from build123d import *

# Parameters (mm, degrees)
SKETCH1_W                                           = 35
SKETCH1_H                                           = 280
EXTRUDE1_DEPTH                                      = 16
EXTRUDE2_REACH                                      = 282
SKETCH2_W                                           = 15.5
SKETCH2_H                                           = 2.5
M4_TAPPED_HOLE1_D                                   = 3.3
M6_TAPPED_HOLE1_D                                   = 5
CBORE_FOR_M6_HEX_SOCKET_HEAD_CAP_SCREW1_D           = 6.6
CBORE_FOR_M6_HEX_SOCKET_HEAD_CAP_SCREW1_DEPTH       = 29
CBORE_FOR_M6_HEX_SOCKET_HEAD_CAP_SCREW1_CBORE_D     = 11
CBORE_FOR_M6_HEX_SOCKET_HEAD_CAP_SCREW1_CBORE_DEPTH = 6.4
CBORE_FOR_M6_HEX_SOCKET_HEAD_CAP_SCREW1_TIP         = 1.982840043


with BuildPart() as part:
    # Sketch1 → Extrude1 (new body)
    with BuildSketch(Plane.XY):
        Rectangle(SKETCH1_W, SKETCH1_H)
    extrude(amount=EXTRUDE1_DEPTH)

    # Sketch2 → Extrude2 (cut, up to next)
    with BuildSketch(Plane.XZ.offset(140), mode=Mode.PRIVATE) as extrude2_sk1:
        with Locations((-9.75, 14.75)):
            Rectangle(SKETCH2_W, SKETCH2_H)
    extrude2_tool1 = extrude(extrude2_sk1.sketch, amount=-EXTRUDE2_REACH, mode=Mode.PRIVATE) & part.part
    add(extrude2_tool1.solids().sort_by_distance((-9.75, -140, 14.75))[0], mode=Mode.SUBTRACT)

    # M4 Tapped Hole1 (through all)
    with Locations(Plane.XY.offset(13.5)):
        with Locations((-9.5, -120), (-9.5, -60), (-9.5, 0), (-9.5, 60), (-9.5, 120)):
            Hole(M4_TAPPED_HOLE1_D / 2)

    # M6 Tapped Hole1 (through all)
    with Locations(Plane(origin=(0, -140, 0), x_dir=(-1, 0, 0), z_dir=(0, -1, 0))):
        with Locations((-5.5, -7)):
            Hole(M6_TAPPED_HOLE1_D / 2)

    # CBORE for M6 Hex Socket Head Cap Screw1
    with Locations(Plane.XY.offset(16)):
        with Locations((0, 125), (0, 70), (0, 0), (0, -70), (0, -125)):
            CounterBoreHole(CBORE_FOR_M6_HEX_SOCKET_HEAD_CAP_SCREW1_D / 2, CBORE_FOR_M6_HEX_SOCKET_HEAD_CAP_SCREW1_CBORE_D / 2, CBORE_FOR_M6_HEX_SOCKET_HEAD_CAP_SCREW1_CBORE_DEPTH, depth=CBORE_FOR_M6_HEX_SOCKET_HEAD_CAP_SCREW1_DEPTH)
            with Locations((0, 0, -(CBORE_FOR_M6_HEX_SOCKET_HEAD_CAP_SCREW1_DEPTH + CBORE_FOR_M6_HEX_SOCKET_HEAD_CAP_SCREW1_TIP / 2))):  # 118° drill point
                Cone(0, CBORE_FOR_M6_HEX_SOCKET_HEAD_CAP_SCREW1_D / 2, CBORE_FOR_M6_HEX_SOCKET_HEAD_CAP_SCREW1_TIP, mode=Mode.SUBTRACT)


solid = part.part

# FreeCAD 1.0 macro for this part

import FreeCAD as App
import Part
import Sketcher

V = App.Vector

doc = App.newDocument("Part")
params = doc.addObject("Spreadsheet::Sheet", "Params")
for row, (alias, value) in enumerate([
    ("sketch1_width", "35 mm"),
    ("sketch1_height", "280 mm"),
    ("pad1_length", "16 mm"),
    ("sketch2_width", "15.5 mm"),
    ("sketch2_height", "2.5 mm"),
    ("sketch3_diameter", "3.3 mm"),
    ("hole_diameter", "3.3 mm"),
    ("sketch4_diameter", "5 mm"),
    ("hole2_diameter", "5 mm"),
    ("sketch5_diameter", "6.6 mm"),
    ("hole3_diameter", "6.6 mm"),
    ("hole3_depth", "29 mm"),
    ("hole3_cbore_diameter", "11 mm"),
    ("hole3_cbore_depth", "6.4 mm"),
], start=1):
    params.set(f"A{row}", alias)
    params.set(f"B{row}", "=" + value)
    params.setAlias(f"B{row}", alias)

body = doc.addObject("PartDesign::Body", "Body")

# Sketch on XY plane
sketch1 = body.newObject("Sketcher::SketchObject", "Sketch")
sketch1.AttachmentSupport = (doc.getObject("XY_Plane"), [""])
sketch1.MapMode = "FlatFace"
sketch1.addGeometry(Part.LineSegment(V(-17.5, 140, 0), V(-17.5, -140, 0)), False)
sketch1.addGeometry(Part.LineSegment(V(-17.5, -140, 0), V(17.5, -140, 0)), False)
sketch1.addGeometry(Part.LineSegment(V(17.5, -140, 0), V(17.5, 140, 0)), False)
sketch1.addGeometry(Part.LineSegment(V(17.5, 140, 0), V(-17.5, 140, 0)), False)
sketch1.addConstraint(Sketcher.Constraint("Coincident", 0, 2, 1, 1))
sketch1.addConstraint(Sketcher.Constraint("Coincident", 1, 2, 2, 1))
sketch1.addConstraint(Sketcher.Constraint("Coincident", 2, 2, 3, 1))
sketch1.addConstraint(Sketcher.Constraint("Coincident", 3, 2, 0, 1))
sketch1.addConstraint(Sketcher.Constraint("Vertical", 0))
sketch1.addConstraint(Sketcher.Constraint("Horizontal", 1))
sketch1.addConstraint(Sketcher.Constraint("Vertical", 2))
sketch1.addConstraint(Sketcher.Constraint("Horizontal", 3))
sketch1.addConstraint(Sketcher.Constraint("Symmetric", 0, 2, 2, 2, -1, 1))
sketch1.addConstraint(Sketcher.Constraint("DistanceX", 1, 1, 1, 2, 35.0))
sketch1.addConstraint(Sketcher.Constraint("DistanceY", 0, 2, 0, 1, 280.0))
sketch1.setExpression("Constraints[9]", "Params.sketch1_width")
sketch1.setExpression("Constraints[10]", "Params.sketch1_height")
pad1 = body.newObject("PartDesign::Pad", "Pad")
pad1.Profile = sketch1
pad1.setExpression("Length", "Params.pad1_length")

# Sketch on XZ plane
sketch2 = body.newObject("Sketcher::SketchObject", "Sketch001")
sketch2.AttachmentSupport = (doc.getObject("XZ_Plane"), [""])
sketch2.MapMode = "FlatFace"
sketch2.AttachmentOffset = App.Placement(V(0, 0, 140), App.Rotation())
sketch2.addGeometry(Part.LineSegment(V(-17.5, 16, 0), V(-17.5, 13.5, 0)), False)
sketch2.addGeometry(Part.LineSegment(V(-17.5, 13.5, 0), V(-2, 13.5, 0)), False)
sketch2.addGeometry(Part.LineSegment(V(-2, 13.5, 0), V(-2, 16, 0)), False)
sketch2.addGeometry(Part.LineSegment(V(-2, 16, 0), V(-17.5, 16, 0)), False)
sketch2.addConstraint(Sketcher.Constraint("Coincident", 0, 2, 1, 1))
sketch2.addConstraint(Sketcher.Constraint("Coincident", 1, 2, 2, 1))
sketch2.addConstraint(Sketcher.Constraint("Coincident", 2, 2, 3, 1))
sketch2.addConstraint(Sketcher.Constraint("Coincident", 3, 2, 0, 1))
sketch2.addConstraint(Sketcher.Constraint("Vertical", 0))
sketch2.addConstraint(Sketcher.Constraint("Horizontal", 1))
sketch2.addConstraint(Sketcher.Constraint("Vertical", 2))
sketch2.addConstraint(Sketcher.Constraint("Horizontal", 3))
sketch2.addConstraint(Sketcher.Constraint("DistanceX", 1, 1, 1, 2, 15.5))
sketch2.addConstraint(Sketcher.Constraint("DistanceY", 0, 2, 0, 1, 2.5))
sketch2.addConstraint(Sketcher.Constraint("DistanceX", 1, 2, -1, 1, 2.0))
sketch2.addConstraint(Sketcher.Constraint("DistanceY", -1, 1, 2, 2, 16.0))
sketch2.setExpression("Constraints[8]", "Params.sketch2_width")
sketch2.setExpression("Constraints[9]", "Params.sketch2_height")
pocket1 = body.newObject("PartDesign::Pocket", "Pocket")
pocket1.Profile = sketch2
pocket1.Type = "UpToFirst"

# Sketch on XY plane
sketch3 = body.newObject("Sketcher::SketchObject", "Sketch002")
sketch3.AttachmentSupport = (doc.getObject("XY_Plane"), [""])
sketch3.MapMode = "FlatFace"
sketch3.AttachmentOffset = App.Placement(V(0, 0, 13.5), App.Rotation())
sketch3.addGeometry(Part.Circle(V(-9.5, -120, 0), V(0, 0, 1), 1.65), False)
sketch3.addGeometry(Part.Circle(V(-9.5, -60, 0), V(0, 0, 1), 1.65), False)
sketch3.addGeometry(Part.Circle(V(-9.5, 0, 0), V(0, 0, 1), 1.65), False)
sketch3.addGeometry(Part.Circle(V(-9.5, 60, 0), V(0, 0, 1), 1.65), False)
sketch3.addGeometry(Part.Circle(V(-9.5, 120, 0), V(0, 0, 1), 1.65), False)
sketch3.addConstraint(Sketcher.Constraint("Equal", 0, 1))
sketch3.addConstraint(Sketcher.Constraint("Equal", 1, 2))
sketch3.addConstraint(Sketcher.Constraint("Equal", 2, 3))
sketch3.addConstraint(Sketcher.Constraint("Equal", 3, 4))
sketch3.addConstraint(Sketcher.Constraint("Symmetric", 1, 3, 3, 3, -1))
sketch3.addConstraint(Sketcher.Constraint("Symmetric", 0, 3, 4, 3, -1))
sketch3.addConstraint(Sketcher.Constraint("PointOnObject", 2, 3, -1))
sketch3.addConstraint(Sketcher.Constraint("Vertical", 0, 3, 1, 3))
sketch3.addConstraint(Sketcher.Constraint("Vertical", 1, 3, 2, 3))
sketch3.addConstraint(Sketcher.Constraint("Diameter", 0, 3.3))
sketch3.addConstraint(Sketcher.Constraint("DistanceY", 0, 3, -1, 1, 120.0))
sketch3.addConstraint(Sketcher.Constraint("DistanceY", 1, 3, -1, 1, 60.0))
sketch3.addConstraint(Sketcher.Constraint("DistanceX", 0, 3, -1, 1, 9.5))
sketch3.setExpression("Constraints[9]", "Params.sketch3_diameter")
doc.recompute()
hole = body.newObject("PartDesign::Hole", "Hole")
hole.Profile = sketch3
hole.ThreadType = "None"
hole.setExpression("Diameter", "Params.hole_diameter")
hole.DepthType = "ThroughAll"

# Sketch on XZ plane
sketch4 = body.newObject("Sketcher::SketchObject", "Sketch003")
sketch4.AttachmentSupport = (doc.getObject("XZ_Plane"), [""])
sketch4.MapMode = "FlatFace"
sketch4.AttachmentOffset = App.Placement(V(0, 0, 140), App.Rotation())
sketch4.addGeometry(Part.Circle(V(5.5, 7, 0), V(0, 0, 1), 2.5), False)
sketch4.addConstraint(Sketcher.Constraint("Diameter", 0, 5.0))
sketch4.addConstraint(Sketcher.Constraint("DistanceY", -1, 1, 0, 3, 7.0))
sketch4.addConstraint(Sketcher.Constraint("DistanceX", -1, 1, 0, 3, 5.5))
sketch4.setExpression("Constraints[0]", "Params.sketch4_diameter")
doc.recompute()
hole2 = body.newObject("PartDesign::Hole", "Hole001")
hole2.Profile = sketch4
hole2.ThreadType = "None"
hole2.setExpression("Diameter", "Params.hole2_diameter")
hole2.DepthType = "ThroughAll"

# Sketch on XY plane
sketch5 = body.newObject("Sketcher::SketchObject", "Sketch004")
sketch5.AttachmentSupport = (doc.getObject("XY_Plane"), [""])
sketch5.MapMode = "FlatFace"
sketch5.AttachmentOffset = App.Placement(V(0, 0, 16), App.Rotation())
sketch5.addGeometry(Part.Circle(V(0, 125, 0), V(0, 0, 1), 3.3), False)
sketch5.addGeometry(Part.Circle(V(0, 70, 0), V(0, 0, 1), 3.3), False)
sketch5.addGeometry(Part.Circle(V(0, 0, 0), V(0, 0, 1), 3.3), False)
sketch5.addGeometry(Part.Circle(V(0, -70, 0), V(0, 0, 1), 3.3), False)
sketch5.addGeometry(Part.Circle(V(0, -125, 0), V(0, 0, 1), 3.3), False)
sketch5.addConstraint(Sketcher.Constraint("Coincident", 2, 3, -1, 1))
sketch5.addConstraint(Sketcher.Constraint("Equal", 0, 1))
sketch5.addConstraint(Sketcher.Constraint("Equal", 1, 2))
sketch5.addConstraint(Sketcher.Constraint("Equal", 2, 3))
sketch5.addConstraint(Sketcher.Constraint("Equal", 3, 4))
sketch5.addConstraint(Sketcher.Constraint("Symmetric", 1, 3, 3, 3, -1, 1))
sketch5.addConstraint(Sketcher.Constraint("Symmetric", 0, 3, 4, 3, -1, 1))
sketch5.addConstraint(Sketcher.Constraint("PointOnObject", 0, 3, -2))
sketch5.addConstraint(Sketcher.Constraint("PointOnObject", 1, 3, -2))
sketch5.addConstraint(Sketcher.Constraint("Diameter", 0, 6.6))
sketch5.addConstraint(Sketcher.Constraint("DistanceY", -1, 1, 0, 3, 125.0))
sketch5.addConstraint(Sketcher.Constraint("DistanceY", -1, 1, 1, 3, 70.0))
sketch5.setExpression("Constraints[9]", "Params.sketch5_diameter")
doc.recompute()
hole3 = body.newObject("PartDesign::Hole", "Hole002")
hole3.Profile = sketch5
hole3.ThreadType = "None"
hole3.setExpression("Diameter", "Params.hole3_diameter")
hole3.DepthType = "Dimension"
hole3.setExpression("Depth", "Params.hole3_depth")
hole3.DrillPoint = "Angled"
hole3.DrillPointAngle = 118
hole3.HoleCutType = "Counterbore"
hole3.setExpression("HoleCutDiameter", "Params.hole3_cbore_diameter")
hole3.setExpression("HoleCutDepth", "Params.hole3_cbore_depth")

doc.recompute()
